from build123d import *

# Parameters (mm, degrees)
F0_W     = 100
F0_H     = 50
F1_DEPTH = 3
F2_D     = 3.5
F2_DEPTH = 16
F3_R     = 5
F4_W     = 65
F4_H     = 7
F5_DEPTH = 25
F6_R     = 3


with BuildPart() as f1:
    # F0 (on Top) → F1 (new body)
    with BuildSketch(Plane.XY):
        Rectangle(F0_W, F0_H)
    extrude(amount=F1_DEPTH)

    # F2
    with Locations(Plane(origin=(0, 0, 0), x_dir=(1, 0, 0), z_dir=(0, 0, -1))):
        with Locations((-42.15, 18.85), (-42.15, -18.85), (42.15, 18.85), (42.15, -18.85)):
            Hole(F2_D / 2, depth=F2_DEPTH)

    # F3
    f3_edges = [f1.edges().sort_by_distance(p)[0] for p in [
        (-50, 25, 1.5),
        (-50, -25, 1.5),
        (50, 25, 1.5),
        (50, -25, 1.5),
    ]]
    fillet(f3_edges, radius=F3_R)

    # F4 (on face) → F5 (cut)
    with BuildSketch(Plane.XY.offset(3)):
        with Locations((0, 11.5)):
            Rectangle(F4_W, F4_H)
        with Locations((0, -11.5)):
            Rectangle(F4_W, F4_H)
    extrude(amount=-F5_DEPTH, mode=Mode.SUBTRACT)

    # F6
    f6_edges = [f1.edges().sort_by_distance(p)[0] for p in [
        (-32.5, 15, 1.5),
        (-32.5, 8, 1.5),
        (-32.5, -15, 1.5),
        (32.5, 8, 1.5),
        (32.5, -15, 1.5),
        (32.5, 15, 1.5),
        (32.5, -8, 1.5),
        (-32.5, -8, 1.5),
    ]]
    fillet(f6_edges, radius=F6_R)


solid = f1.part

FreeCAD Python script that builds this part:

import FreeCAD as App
import Part
import Sketcher
from FreeCAD import Vector


def edges_at(feature, points):
    """Names of the edges that pass closest to the given points."""
    edges = feature.Shape.Edges
    near = lambda p: min(range(len(edges)), key=lambda i: edges[i].distToShape(Part.Vertex(*p))[0])
    return sorted({f"Edge{near(p) + 1}" for p in points})

doc = App.newDocument("Part")
body = doc.addObject("PartDesign::Body", "Body")

sketch1 = body.newObject("Sketcher::SketchObject", "Sketch")
sketch1.AttachmentSupport = (doc.getObject("XY_Plane"), [""])
sketch1.MapMode = "FlatFace"
sketch1.addGeometry([
    Part.LineSegment(Vector(-50, 25, 0), Vector(-50, -25, 0)),
    Part.LineSegment(Vector(-50, -25, 0), Vector(50, -25, 0)),
    Part.LineSegment(Vector(50, -25, 0), Vector(50, 25, 0)),
    Part.LineSegment(Vector(50, 25, 0), Vector(-50, 25, 0)),
], False)
sketch1.addConstraint([
    Sketcher.Constraint("Coincident", 0, 2, 1, 1),
    Sketcher.Constraint("Coincident", 1, 2, 2, 1),
    Sketcher.Constraint("Coincident", 2, 2, 3, 1),
    Sketcher.Constraint("Coincident", 3, 2, 0, 1),
    Sketcher.Constraint("Vertical", 0),
    Sketcher.Constraint("Horizontal", 1),
    Sketcher.Constraint("Vertical", 2),
    Sketcher.Constraint("Horizontal", 3),
    Sketcher.Constraint("Symmetric", 0, 2, 2, 2, -1, 1),
    Sketcher.Constraint("DistanceX", 1, 1, 1, 2, 100.0),
    Sketcher.Constraint("DistanceY", 0, 2, 0, 1, 50.0),
])
pad1 = body.newObject("PartDesign::Pad", "Pad")
pad1.Profile = sketch1
pad1.Length = 3

sketch2 = body.newObject("Sketcher::SketchObject", "Sketch001")
sketch2.AttachmentSupport = (doc.getObject("XY_Plane"), [""])
sketch2.MapMode = "FlatFace"
sketch2.addGeometry([
    Part.Circle(Vector(-42.1, -18.9, 0), Vector(0, 0, 1), 1.8),
    Part.Circle(Vector(-42.1, 18.9, 0), Vector(0, 0, 1), 1.8),
    Part.Circle(Vector(42.1, -18.9, 0), Vector(0, 0, 1), 1.8),
    Part.Circle(Vector(42.1, 18.9, 0), Vector(0, 0, 1), 1.8),
], False)
sketch2.addConstraint([
    Sketcher.Constraint("Equal", 0, 1),
    Sketcher.Constraint("Equal", 1, 2),
    Sketcher.Constraint("Equal", 2, 3),
    Sketcher.Constraint("Symmetric", 1, 3, 2, 3, -1, 1),
    Sketcher.Constraint("Symmetric", 0, 3, 3, 3, -1, 1),
    Sketcher.Constraint("Symmetric", 0, 3, 2, 3, -2),
    Sketcher.Constraint("Diameter", 0, 3.5),
    Sketcher.Constraint("DistanceY", 0, 3, 1, 3, 37.7),
    Sketcher.Constraint("DistanceX", 0, 3, 2, 3, 84.3),
])
doc.recompute()
hole = body.newObject("PartDesign::Hole", "Hole")
hole.Profile = sketch2
hole.ThreadType = "None"
hole.Diameter = 3.5
hole.DepthType = "Dimension"
hole.Depth = 16
hole.DrillPoint = "Flat"
hole.Reversed = True
doc.recompute()

fillet = body.newObject("PartDesign::Fillet", "Fillet")
fillet.Base = (hole, edges_at(hole, [
    (-50, 25, 1.5),
    (-50, -25, 1.5),
    (50, 25, 1.5),
    (50, -25, 1.5),
]))
fillet.Radius = 5

sketch3 = body.newObject("Sketcher::SketchObject", "Sketch002")
sketch3.AttachmentSupport = (doc.getObject("XY_Plane"), [""])
sketch3.MapMode = "FlatFace"
sketch3.AttachmentOffset = App.Placement(Vector(0, 0, 3), App.Rotation())
sketch3.addGeometry([
    Part.LineSegment(Vector(-32, 15, 0), Vector(-32, 8, 0)),
    Part.LineSegment(Vector(-32, 8, 0), Vector(32, 8, 0)),
    Part.LineSegment(Vector(32, 8, 0), Vector(32, 15, 0)),
    Part.LineSegment(Vector(32, 15, 0), Vector(-32, 15, 0)),
    Part.LineSegment(Vector(-32, -8, 0), Vector(-32, -15, 0)),
    Part.LineSegment(Vector(-32, -15, 0), Vector(32, -15, 0)),
    Part.LineSegment(Vector(32, -15, 0), Vector(32, -8, 0)),
    Part.LineSegment(Vector(32, -8, 0), Vector(-32, -8, 0)),
], False)
sketch3.addConstraint([
    Sketcher.Constraint("Coincident", 0, 2, 1, 1),
    Sketcher.Constraint("Coincident", 1, 2, 2, 1),
    Sketcher.Constraint("Coincident", 2, 2, 3, 1),
    Sketcher.Constraint("Coincident", 3, 2, 0, 1),
    Sketcher.Constraint("Coincident", 4, 2, 5, 1),
    Sketcher.Constraint("Coincident", 5, 2, 6, 1),
    Sketcher.Constraint("Coincident", 6, 2, 7, 1),
    Sketcher.Constraint("Coincident", 7, 2, 4, 1),
    Sketcher.Constraint("Vertical", 0),
    Sketcher.Constraint("Horizontal", 1),
    Sketcher.Constraint("Vertical", 2),
    Sketcher.Constraint("Horizontal", 3),
    Sketcher.Constraint("Vertical", 4),
    Sketcher.Constraint("Horizontal", 5),
    Sketcher.Constraint("Vertical", 6),
    Sketcher.Constraint("Horizontal", 7),
    Sketcher.Constraint("Symmetric", 2, 2, 4, 2, -1, 1),
    Sketcher.Constraint("Symmetric", 0, 2, 6, 2, -1, 1),
    Sketcher.Constraint("Vertical", 3, 2, 4, 2),
    Sketcher.Constraint("DistanceX", 1, 1, 1, 2, 65.0),
    Sketcher.Constraint("DistanceY", 0, 2, 0, 1, 7.0),
    Sketcher.Constraint("DistanceY", -1, 1, 0, 2, 8.0),
])
pocket1 = body.newObject("PartDesign::Pocket", "Pocket")
pocket1.Profile = sketch3
pocket1.Length = 25
doc.recompute()

fillet2 = body.newObject("PartDesign::Fillet", "Fillet001")
fillet2.Base = (pocket1, edges_at(pocket1, [
    (-32.5, 15, 1.5),
    (-32.5, 8, 1.5),
    (-32.5, -15, 1.5),
    (32.5, 8, 1.5),
    (32.5, -15, 1.5),
    (32.5, 15, 1.5),
    (32.5, -8, 1.5),
    (-32.5, -8, 1.5),
]))
fillet2.Radius = 3

doc.recompute()
